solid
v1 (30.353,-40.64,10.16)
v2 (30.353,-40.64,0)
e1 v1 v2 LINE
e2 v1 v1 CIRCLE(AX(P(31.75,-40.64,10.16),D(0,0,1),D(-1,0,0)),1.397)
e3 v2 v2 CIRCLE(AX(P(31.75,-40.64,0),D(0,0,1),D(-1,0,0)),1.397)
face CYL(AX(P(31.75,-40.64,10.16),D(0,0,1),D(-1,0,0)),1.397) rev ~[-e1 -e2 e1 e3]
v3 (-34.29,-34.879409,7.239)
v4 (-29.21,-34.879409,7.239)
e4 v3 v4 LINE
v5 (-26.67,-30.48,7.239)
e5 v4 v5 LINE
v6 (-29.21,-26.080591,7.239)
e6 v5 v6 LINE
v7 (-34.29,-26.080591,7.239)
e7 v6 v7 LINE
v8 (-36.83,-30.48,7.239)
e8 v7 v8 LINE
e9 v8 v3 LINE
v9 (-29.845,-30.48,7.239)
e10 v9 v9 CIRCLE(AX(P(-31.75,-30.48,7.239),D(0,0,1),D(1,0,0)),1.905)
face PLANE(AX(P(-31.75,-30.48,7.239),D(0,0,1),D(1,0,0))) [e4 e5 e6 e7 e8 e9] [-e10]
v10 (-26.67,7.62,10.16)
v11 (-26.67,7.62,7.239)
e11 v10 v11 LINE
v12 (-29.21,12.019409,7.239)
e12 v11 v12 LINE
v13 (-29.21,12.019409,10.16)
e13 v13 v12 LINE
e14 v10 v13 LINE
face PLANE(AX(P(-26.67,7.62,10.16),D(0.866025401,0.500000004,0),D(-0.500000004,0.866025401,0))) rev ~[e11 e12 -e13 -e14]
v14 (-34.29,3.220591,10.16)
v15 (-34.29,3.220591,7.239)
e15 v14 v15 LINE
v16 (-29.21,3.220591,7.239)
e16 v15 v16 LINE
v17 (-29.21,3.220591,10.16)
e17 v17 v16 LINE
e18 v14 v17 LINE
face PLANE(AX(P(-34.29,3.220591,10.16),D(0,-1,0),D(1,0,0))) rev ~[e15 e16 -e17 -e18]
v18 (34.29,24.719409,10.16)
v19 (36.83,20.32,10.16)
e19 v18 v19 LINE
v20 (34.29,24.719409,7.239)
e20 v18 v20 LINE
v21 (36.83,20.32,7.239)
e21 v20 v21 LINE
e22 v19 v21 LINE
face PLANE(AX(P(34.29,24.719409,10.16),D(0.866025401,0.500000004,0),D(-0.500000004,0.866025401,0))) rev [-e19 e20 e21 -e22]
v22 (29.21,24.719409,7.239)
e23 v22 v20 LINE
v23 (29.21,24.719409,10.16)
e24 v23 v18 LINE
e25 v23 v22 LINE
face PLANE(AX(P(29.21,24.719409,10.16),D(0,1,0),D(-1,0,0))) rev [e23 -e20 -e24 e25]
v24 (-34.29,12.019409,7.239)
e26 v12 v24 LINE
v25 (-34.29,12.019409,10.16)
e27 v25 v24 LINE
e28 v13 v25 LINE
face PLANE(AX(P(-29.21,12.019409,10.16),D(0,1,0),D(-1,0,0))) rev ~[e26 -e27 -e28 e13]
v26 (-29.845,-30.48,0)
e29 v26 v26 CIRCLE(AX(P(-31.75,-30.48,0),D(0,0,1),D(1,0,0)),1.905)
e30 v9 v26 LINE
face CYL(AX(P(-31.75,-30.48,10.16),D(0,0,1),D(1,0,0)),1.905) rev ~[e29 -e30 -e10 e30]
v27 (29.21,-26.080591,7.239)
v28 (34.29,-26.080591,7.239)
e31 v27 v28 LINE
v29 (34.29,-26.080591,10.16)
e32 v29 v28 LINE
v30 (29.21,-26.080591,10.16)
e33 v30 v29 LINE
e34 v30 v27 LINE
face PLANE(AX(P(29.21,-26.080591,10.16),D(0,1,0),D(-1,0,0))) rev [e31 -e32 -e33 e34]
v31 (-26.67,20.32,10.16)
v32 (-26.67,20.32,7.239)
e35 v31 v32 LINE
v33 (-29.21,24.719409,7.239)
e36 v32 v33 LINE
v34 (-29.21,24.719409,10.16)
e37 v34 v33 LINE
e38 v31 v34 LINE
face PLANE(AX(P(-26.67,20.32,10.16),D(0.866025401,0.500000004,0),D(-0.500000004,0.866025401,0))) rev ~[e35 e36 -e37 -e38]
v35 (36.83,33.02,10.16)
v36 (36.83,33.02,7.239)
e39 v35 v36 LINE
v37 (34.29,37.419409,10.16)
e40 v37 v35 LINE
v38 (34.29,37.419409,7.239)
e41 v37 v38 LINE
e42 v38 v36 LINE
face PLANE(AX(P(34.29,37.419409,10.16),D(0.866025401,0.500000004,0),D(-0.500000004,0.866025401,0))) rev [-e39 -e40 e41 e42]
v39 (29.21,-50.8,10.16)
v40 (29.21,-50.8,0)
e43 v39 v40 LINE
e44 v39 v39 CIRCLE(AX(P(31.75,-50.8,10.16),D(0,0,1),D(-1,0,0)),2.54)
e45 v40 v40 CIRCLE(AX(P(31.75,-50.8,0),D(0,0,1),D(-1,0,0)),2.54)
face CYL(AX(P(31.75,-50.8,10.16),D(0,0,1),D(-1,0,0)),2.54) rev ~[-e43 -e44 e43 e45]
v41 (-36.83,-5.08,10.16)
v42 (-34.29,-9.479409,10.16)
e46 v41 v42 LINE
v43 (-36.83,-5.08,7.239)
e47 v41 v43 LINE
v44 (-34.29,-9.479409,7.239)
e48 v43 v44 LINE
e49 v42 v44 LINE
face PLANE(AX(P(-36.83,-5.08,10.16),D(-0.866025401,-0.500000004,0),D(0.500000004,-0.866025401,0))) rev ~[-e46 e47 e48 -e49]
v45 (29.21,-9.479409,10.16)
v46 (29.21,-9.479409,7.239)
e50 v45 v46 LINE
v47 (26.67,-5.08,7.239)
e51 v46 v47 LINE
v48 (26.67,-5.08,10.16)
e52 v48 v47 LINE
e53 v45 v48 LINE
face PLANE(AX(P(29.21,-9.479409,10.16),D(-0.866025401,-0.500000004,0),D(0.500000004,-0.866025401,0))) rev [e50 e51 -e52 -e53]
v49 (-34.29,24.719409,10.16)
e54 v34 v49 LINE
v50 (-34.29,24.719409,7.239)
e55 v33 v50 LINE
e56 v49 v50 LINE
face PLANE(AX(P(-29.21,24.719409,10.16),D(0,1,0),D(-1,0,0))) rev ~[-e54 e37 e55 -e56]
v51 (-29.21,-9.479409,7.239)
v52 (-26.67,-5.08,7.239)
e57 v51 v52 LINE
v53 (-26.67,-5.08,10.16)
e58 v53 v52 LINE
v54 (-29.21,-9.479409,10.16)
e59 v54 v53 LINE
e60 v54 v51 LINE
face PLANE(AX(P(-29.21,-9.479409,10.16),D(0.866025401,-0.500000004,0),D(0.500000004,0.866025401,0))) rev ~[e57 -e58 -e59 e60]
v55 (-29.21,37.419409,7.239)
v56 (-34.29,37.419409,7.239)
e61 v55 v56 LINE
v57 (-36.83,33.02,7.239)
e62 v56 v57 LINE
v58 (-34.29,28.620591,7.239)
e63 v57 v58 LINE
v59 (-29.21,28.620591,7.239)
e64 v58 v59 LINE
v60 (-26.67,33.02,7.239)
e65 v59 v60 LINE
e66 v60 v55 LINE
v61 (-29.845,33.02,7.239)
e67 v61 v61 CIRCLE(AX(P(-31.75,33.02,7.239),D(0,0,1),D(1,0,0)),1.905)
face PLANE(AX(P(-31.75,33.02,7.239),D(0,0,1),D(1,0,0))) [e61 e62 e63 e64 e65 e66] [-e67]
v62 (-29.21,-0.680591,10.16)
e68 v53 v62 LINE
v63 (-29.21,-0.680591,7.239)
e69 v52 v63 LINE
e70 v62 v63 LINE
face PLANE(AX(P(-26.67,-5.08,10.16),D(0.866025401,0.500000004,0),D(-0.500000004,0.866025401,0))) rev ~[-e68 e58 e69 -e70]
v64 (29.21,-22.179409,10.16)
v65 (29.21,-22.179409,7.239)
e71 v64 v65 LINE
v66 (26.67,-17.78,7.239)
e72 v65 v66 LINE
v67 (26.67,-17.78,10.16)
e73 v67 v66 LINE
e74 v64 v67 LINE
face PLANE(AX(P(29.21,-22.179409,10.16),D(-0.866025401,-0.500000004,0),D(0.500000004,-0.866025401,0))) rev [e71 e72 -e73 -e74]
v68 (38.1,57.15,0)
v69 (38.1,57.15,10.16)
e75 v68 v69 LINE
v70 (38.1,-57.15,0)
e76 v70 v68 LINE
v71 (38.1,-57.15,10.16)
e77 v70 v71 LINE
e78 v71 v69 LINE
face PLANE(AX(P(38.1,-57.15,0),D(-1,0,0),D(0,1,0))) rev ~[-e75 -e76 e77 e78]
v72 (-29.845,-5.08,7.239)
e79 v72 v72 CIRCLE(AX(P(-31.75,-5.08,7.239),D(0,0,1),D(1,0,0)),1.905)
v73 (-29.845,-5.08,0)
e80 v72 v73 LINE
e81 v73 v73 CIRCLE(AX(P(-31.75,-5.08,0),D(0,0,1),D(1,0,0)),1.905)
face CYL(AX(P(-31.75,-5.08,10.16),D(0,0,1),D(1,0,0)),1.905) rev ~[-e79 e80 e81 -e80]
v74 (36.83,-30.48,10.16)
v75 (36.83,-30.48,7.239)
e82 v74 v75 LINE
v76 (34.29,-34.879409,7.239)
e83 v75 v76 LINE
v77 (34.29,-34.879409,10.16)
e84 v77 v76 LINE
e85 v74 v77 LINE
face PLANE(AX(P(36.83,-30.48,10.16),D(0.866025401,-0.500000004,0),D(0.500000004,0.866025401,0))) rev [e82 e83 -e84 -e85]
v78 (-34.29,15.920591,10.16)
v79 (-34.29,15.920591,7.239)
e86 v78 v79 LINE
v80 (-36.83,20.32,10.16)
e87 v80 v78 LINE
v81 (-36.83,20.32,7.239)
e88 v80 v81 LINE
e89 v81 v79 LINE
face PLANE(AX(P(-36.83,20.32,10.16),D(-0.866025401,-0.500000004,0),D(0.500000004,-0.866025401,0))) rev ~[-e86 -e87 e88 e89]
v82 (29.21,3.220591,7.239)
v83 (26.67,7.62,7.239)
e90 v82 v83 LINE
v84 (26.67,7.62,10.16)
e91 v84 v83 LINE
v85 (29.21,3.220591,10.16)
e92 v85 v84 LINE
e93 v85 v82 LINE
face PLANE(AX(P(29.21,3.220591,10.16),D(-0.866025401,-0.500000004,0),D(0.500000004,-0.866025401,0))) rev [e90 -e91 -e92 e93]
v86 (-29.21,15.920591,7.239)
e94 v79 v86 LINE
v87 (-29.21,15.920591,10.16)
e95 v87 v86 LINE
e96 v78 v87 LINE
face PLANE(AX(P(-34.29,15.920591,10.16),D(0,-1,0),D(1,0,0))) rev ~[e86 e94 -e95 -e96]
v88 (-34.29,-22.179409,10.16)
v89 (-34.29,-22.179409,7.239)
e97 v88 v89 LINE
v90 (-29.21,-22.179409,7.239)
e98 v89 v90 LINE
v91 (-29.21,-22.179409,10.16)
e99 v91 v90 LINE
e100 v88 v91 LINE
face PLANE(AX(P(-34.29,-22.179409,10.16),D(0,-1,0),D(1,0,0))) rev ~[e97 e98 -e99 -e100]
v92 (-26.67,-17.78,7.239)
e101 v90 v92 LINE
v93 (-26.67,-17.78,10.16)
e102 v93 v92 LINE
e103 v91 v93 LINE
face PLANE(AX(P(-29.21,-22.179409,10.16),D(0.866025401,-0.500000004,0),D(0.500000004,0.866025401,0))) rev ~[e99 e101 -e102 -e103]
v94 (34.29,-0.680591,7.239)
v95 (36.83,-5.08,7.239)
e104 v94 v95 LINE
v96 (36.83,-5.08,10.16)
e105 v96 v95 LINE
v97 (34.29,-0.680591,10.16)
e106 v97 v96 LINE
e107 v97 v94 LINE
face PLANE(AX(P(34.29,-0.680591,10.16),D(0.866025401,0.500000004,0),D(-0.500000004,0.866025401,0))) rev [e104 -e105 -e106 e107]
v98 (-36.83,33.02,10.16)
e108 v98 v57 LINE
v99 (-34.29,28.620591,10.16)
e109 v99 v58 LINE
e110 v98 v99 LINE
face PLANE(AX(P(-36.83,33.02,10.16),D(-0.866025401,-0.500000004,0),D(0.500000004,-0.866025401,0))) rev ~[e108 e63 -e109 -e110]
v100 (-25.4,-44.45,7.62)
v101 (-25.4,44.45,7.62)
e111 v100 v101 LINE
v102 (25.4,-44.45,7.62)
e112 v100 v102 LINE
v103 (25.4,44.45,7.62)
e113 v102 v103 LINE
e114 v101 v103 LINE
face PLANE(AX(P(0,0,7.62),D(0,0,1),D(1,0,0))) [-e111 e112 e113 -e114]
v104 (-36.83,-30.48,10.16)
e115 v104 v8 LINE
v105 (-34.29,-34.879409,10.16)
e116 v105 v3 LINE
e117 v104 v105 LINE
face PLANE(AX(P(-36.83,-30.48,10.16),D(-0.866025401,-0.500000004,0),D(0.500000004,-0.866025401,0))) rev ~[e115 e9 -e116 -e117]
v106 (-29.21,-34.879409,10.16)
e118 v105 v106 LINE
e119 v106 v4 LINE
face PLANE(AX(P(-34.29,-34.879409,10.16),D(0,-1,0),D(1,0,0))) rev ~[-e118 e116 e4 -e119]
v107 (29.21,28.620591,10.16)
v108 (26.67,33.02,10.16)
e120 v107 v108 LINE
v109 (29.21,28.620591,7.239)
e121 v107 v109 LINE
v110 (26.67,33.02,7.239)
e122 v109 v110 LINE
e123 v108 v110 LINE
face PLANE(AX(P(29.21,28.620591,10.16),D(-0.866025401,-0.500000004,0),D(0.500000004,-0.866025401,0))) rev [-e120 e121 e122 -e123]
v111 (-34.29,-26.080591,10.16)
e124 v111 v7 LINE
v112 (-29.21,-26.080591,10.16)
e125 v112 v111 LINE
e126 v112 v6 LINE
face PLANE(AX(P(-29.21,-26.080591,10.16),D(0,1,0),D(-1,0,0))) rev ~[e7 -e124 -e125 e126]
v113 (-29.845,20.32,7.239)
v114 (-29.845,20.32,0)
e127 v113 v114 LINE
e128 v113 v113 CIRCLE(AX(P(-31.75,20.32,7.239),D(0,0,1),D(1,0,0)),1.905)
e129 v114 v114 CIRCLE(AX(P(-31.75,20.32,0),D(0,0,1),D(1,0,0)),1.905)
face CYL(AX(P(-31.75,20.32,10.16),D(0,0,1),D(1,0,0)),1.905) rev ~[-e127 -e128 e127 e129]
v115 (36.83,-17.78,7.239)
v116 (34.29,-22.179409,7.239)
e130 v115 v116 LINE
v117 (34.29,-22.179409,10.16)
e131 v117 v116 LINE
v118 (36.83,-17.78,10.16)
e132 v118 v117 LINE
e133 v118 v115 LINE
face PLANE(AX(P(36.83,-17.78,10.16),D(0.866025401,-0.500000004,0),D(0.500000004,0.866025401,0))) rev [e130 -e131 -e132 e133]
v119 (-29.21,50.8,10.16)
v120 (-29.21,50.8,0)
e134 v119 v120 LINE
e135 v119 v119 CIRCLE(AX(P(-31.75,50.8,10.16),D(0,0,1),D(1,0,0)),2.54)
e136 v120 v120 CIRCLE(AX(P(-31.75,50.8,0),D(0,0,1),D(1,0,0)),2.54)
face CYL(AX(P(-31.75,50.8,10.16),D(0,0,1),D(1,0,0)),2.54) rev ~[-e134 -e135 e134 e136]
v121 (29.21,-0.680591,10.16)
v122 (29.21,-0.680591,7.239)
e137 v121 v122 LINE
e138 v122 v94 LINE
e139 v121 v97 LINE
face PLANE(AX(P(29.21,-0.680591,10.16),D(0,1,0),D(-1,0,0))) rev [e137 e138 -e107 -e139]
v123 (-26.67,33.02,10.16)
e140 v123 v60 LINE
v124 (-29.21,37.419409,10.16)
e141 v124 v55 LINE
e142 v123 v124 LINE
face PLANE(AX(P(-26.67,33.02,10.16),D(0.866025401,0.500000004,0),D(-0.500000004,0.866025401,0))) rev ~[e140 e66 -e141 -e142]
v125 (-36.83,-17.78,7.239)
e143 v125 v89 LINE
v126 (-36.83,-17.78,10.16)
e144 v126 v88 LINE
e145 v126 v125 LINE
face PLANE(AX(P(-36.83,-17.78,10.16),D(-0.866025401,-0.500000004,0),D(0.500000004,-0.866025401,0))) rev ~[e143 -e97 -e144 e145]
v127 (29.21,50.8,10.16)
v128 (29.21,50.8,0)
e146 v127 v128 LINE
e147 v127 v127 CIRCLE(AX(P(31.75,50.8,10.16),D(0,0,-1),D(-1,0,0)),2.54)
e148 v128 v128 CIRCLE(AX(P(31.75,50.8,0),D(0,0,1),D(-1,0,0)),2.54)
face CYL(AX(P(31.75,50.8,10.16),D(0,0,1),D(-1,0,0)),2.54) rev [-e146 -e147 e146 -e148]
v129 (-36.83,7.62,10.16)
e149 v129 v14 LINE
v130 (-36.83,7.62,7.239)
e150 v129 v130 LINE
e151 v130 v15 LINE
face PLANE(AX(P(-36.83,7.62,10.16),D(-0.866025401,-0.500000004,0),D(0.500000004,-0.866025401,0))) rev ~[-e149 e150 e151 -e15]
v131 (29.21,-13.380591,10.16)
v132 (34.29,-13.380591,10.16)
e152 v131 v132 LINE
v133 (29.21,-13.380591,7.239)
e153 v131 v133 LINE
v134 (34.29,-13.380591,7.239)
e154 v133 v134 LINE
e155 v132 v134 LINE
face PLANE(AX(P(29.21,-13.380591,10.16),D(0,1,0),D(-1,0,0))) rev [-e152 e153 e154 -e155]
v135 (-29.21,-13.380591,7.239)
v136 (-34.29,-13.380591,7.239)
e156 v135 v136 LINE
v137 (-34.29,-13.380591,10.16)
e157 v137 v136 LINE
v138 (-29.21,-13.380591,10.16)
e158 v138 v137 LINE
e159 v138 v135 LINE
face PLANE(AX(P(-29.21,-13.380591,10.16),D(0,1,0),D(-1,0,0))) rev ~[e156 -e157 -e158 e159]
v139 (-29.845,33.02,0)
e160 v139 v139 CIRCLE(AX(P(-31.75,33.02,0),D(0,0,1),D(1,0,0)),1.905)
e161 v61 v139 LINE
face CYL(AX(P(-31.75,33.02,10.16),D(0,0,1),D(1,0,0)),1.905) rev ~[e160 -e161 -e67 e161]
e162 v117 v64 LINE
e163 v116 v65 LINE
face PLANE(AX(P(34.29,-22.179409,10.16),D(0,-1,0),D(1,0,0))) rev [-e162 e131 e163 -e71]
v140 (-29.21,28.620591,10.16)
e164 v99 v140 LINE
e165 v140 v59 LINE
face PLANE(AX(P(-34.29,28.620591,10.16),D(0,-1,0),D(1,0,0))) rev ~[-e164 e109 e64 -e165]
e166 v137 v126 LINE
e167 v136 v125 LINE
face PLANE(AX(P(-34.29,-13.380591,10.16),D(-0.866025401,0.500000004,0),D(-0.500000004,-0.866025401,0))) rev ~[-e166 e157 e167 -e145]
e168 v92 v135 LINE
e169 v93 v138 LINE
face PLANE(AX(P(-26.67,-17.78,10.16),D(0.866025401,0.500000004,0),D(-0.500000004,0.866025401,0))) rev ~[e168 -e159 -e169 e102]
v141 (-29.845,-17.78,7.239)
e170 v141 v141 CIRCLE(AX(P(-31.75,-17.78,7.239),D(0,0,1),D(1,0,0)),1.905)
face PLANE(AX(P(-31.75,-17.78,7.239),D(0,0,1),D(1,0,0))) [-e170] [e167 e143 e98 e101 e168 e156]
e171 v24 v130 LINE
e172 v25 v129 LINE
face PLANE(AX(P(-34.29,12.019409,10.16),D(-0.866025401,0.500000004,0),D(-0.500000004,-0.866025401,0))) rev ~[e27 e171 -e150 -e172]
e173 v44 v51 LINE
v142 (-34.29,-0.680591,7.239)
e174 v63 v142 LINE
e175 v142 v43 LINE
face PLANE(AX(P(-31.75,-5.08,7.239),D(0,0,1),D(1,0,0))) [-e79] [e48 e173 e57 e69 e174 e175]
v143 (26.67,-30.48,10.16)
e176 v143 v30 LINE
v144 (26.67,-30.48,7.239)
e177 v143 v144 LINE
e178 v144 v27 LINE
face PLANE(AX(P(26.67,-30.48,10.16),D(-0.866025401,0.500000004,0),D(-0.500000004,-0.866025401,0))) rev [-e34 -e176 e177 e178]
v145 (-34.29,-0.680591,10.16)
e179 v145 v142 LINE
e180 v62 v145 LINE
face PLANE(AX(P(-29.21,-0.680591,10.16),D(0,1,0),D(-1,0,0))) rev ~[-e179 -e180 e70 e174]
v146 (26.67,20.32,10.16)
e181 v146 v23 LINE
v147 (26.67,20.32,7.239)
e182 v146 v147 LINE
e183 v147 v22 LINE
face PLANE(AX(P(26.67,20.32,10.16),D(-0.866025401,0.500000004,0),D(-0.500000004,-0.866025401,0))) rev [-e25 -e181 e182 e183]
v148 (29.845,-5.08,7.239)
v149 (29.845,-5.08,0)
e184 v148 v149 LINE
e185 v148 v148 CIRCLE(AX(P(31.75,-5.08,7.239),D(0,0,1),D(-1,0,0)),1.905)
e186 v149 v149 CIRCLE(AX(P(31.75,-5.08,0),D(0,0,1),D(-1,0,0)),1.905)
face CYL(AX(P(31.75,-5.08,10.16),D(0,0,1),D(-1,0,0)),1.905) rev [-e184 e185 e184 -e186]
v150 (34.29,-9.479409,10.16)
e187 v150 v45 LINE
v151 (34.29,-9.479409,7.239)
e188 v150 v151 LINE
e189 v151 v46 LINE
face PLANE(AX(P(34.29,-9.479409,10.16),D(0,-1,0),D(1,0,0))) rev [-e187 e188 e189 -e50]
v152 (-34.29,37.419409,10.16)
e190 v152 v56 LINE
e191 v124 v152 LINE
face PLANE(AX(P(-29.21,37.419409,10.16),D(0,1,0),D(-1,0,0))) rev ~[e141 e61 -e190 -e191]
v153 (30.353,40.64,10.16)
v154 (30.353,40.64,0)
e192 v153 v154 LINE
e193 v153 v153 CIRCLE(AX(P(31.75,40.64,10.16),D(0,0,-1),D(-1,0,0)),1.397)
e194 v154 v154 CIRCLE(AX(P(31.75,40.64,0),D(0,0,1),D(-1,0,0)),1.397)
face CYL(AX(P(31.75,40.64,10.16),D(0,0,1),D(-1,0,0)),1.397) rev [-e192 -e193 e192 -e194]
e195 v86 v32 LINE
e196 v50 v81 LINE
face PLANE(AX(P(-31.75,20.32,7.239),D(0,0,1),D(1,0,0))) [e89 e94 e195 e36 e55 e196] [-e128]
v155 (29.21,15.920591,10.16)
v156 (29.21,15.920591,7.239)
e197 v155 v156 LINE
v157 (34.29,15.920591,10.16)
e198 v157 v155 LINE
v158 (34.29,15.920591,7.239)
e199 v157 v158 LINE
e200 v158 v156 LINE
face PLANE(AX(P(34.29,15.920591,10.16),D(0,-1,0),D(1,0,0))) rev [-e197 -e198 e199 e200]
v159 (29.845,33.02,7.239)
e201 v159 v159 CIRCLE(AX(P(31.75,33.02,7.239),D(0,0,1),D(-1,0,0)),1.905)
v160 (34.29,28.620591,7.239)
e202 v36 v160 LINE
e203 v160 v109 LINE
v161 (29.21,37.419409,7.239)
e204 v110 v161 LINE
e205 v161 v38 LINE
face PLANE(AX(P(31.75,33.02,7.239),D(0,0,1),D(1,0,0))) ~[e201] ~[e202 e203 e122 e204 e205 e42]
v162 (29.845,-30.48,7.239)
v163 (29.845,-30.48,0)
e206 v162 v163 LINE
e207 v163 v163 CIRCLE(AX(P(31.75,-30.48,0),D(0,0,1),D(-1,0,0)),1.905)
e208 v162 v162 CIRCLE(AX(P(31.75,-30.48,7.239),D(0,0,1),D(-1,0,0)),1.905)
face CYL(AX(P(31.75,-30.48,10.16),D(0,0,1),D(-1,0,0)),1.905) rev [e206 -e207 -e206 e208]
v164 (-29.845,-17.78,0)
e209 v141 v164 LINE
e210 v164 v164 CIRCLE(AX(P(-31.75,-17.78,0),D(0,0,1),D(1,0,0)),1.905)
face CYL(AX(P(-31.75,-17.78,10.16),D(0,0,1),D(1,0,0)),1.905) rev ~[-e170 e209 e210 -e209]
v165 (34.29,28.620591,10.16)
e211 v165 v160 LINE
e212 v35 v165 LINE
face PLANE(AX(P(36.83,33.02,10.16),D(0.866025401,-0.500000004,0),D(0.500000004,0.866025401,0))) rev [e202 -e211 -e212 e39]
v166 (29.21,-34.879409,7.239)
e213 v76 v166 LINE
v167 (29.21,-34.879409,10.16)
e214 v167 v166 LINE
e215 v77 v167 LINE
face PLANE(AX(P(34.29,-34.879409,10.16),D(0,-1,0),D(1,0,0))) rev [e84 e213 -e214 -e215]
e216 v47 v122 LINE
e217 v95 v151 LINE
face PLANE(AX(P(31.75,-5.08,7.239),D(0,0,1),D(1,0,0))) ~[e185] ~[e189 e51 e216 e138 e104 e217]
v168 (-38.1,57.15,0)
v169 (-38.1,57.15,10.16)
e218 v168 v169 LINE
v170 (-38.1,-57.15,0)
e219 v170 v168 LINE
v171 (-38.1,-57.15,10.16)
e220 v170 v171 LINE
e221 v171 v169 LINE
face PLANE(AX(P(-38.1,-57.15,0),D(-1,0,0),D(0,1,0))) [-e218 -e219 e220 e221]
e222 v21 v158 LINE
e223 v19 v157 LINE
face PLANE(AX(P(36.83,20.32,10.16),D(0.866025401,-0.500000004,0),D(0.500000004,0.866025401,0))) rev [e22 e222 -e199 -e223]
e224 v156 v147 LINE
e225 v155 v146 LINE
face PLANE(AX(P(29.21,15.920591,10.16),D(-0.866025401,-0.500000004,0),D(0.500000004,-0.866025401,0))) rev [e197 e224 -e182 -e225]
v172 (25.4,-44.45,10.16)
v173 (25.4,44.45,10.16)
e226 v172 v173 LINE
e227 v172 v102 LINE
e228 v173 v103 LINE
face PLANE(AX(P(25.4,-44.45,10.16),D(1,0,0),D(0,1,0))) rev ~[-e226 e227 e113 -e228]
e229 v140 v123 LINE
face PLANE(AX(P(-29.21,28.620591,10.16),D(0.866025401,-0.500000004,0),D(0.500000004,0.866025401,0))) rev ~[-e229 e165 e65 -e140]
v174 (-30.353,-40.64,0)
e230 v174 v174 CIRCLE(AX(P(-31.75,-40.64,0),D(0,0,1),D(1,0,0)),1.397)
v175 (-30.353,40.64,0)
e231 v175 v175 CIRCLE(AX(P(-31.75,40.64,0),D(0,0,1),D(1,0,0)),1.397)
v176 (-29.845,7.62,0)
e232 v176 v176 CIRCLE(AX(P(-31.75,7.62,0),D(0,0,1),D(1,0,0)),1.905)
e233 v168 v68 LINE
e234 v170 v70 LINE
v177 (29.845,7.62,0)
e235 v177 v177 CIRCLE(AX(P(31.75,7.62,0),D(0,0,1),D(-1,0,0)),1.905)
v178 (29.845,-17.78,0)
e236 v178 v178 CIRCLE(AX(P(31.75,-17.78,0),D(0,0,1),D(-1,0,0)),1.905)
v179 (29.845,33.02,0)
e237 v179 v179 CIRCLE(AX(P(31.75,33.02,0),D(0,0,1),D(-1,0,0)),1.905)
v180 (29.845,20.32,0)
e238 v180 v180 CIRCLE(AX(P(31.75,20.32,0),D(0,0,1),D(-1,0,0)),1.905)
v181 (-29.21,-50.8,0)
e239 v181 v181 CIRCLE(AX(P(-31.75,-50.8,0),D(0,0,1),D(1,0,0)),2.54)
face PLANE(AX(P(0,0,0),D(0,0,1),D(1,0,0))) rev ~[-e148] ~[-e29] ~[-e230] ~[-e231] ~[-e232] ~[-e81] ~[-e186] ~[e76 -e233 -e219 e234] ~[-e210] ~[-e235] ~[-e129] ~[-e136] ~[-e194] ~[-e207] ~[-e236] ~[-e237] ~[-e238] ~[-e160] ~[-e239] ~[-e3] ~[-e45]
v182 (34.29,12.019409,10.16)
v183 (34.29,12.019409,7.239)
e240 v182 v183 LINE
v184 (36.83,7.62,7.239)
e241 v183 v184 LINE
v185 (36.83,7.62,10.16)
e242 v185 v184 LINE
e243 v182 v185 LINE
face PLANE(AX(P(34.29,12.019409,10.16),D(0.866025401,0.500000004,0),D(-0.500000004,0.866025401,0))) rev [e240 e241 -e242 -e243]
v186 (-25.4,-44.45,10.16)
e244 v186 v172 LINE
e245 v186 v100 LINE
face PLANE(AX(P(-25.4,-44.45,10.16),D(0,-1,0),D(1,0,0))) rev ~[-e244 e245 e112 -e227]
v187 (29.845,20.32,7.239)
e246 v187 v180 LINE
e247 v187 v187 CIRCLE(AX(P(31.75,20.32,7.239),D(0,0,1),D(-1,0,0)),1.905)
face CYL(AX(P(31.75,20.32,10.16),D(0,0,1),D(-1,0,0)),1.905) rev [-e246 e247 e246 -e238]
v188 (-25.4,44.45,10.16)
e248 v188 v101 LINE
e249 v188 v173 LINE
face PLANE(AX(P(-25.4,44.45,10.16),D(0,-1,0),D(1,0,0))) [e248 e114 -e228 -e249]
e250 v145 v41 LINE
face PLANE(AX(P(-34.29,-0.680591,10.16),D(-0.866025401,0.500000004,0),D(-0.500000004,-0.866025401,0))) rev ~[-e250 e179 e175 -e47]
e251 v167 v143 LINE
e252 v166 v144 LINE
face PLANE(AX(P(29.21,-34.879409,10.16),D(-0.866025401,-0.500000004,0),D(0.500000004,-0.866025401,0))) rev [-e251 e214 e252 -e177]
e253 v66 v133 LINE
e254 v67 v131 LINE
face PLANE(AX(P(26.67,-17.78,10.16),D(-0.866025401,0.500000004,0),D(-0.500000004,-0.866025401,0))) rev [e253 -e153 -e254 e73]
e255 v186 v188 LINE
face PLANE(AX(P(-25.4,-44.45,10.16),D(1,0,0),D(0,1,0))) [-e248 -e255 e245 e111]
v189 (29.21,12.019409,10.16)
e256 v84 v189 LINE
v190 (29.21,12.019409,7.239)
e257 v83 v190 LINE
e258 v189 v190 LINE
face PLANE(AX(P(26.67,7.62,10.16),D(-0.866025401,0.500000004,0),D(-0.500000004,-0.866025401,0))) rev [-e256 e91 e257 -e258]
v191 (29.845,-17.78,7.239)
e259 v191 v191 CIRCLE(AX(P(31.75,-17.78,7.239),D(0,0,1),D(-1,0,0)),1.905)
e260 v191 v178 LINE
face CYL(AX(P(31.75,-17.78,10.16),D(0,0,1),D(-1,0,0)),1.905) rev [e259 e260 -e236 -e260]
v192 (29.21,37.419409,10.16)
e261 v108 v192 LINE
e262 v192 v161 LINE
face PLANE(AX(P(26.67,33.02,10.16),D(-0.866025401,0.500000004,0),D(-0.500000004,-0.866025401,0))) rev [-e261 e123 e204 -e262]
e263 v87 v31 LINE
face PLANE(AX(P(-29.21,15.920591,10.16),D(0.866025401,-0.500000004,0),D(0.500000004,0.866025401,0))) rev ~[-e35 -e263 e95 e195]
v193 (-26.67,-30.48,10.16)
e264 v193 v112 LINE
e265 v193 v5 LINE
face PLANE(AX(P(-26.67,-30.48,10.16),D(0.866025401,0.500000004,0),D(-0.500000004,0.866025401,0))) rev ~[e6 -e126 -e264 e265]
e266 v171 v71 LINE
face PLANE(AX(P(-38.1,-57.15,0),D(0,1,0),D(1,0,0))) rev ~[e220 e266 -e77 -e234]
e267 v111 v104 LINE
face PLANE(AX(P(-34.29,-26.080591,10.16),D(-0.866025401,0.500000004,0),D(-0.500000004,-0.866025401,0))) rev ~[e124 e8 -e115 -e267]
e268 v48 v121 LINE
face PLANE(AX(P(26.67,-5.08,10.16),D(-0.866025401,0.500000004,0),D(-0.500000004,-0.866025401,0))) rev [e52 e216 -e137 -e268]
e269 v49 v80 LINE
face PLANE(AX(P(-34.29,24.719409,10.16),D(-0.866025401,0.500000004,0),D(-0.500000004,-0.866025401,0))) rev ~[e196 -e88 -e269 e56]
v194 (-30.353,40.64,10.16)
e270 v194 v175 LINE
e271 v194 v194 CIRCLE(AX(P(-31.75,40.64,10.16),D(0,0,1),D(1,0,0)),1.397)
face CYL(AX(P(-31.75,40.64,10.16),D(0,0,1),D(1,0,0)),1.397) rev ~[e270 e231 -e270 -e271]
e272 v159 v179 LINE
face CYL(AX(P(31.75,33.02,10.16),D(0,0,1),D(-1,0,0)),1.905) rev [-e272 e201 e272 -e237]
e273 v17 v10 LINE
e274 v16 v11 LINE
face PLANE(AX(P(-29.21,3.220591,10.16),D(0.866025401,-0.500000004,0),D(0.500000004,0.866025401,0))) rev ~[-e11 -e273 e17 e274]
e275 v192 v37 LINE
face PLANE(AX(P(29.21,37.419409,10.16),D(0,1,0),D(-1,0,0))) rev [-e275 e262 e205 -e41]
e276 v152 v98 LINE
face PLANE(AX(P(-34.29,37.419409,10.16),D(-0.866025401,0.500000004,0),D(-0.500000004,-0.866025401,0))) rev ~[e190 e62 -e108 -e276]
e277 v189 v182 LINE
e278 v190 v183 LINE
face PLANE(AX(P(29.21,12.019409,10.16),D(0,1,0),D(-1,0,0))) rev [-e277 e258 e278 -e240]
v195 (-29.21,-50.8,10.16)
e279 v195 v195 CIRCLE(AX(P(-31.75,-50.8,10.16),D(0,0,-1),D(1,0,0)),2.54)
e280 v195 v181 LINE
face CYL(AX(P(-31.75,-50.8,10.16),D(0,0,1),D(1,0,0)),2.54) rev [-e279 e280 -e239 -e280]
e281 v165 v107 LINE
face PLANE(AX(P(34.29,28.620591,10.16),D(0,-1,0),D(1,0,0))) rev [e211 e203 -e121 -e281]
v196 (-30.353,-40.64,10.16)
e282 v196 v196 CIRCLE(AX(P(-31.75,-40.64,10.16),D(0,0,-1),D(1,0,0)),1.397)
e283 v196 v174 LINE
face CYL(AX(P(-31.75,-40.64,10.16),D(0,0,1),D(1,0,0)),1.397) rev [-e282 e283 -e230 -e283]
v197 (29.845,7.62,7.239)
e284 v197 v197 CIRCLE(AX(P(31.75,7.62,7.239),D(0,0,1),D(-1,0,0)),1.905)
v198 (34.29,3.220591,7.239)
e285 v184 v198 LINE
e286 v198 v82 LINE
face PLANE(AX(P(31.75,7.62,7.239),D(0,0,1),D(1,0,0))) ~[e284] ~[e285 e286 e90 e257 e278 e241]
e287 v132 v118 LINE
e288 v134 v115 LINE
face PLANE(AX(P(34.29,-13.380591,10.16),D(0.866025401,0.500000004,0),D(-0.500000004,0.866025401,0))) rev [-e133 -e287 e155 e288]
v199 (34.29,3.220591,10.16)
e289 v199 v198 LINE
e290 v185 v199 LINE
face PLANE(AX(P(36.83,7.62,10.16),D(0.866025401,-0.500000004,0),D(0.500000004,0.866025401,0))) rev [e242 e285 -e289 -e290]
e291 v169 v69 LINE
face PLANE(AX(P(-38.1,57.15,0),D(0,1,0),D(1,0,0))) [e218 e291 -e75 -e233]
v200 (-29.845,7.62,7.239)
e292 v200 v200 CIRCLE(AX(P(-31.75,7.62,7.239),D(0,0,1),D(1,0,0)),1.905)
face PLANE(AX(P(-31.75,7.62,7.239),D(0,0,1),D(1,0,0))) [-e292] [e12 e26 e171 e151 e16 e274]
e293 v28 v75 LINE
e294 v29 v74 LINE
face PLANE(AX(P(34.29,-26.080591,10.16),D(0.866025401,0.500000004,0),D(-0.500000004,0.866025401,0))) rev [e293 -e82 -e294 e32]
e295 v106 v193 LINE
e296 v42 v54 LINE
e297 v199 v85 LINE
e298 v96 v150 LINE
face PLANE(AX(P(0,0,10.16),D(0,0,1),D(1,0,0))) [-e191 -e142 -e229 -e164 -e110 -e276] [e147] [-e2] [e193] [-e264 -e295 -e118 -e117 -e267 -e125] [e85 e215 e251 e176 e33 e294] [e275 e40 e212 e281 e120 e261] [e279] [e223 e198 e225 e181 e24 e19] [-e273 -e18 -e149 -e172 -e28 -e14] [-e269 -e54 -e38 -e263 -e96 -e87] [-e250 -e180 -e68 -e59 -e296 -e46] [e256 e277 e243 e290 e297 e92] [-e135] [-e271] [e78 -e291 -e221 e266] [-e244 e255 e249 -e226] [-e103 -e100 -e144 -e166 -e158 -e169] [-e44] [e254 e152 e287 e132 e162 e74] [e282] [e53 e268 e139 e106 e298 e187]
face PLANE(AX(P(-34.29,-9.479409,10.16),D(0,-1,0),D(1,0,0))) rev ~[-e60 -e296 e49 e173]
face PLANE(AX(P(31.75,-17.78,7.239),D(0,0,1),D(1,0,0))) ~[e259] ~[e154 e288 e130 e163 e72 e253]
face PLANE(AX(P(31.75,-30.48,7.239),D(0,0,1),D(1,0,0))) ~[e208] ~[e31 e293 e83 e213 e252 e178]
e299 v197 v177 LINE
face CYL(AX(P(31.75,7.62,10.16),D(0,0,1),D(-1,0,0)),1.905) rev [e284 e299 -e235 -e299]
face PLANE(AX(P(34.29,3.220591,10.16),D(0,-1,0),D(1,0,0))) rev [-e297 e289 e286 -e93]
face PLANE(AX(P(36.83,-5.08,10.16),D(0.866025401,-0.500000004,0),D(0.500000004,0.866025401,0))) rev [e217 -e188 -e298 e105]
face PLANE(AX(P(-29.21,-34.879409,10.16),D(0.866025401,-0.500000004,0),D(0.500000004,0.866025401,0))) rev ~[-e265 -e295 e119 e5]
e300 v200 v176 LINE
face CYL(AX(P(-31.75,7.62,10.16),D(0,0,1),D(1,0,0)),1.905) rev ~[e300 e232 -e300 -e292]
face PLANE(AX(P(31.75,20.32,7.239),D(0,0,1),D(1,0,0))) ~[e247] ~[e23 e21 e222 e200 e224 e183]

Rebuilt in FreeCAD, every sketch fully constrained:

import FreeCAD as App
import Part
import Sketcher
from FreeCAD import Vector
Q = App.Units.Quantity


def add_polygon(sketch, points):
    """Adds a closed chain of lines whose ends are joined by coincident constraints."""
    first, n = sketch.GeometryCount, len(points)
    for a, b in zip(points, points[1:] + points[:1]):
        sketch.addGeometry(Part.LineSegment(App.Vector(*a, 0), App.Vector(*b, 0)), False)
    for i in range(n):
        sketch.addConstraint(Sketcher.Constraint("Coincident", first + i, 2, first + (i + 1) % n, 1))

doc = App.newDocument("Part")
body = doc.addObject("PartDesign::Body", "Body")

# Sketch on XY plane
sketch1 = body.newObject("Sketcher::SketchObject", "Sketch")
sketch1.AttachmentSupport = (doc.getObject("XY_Plane"), [""])
sketch1.MapMode = "FlatFace"
add_polygon(sketch1, [(-38, 57), (-38, -57), (38, -57), (38, 57)])  # lines 0-3
sketch1.addConstraint([
    Sketcher.Constraint("Vertical", 0),
    Sketcher.Constraint("Horizontal", 1),
    Sketcher.Constraint("Vertical", 2),
    Sketcher.Constraint("Horizontal", 3),
    Sketcher.Constraint("Symmetric", 0, 2, 2, 2, -1, 1),
    Sketcher.Constraint("DistanceX", 1, 1, 1, 2, Q("3 in")),
    Sketcher.Constraint("DistanceY", 0, 2, 0, 1, Q("4.5 in")),
])
pad1 = body.newObject("PartDesign::Pad", "Pad")
pad1.Profile = sketch1
pad1.Length = Q("0.4 in")

# Sketch on XY plane
sketch2 = body.newObject("Sketcher::SketchObject", "Sketch001")
sketch2.AttachmentSupport = (doc.getObject("XY_Plane"), [""])
sketch2.MapMode = "FlatFace"
sketch2.AttachmentOffset = App.Placement(Vector(0, 0, 0.4 * 25.4), App.Rotation())
sketch2.addGeometry(Part.Circle(Vector(-31.8, 40.6, 0), Vector(0, 0, 1), 1.4), False)
sketch2.addConstraint([
    Sketcher.Constraint("Diameter", 0, Q("0.11 in")),
    Sketcher.Constraint("DistanceY", -1, 1, 0, 3, Q("1.6 in")),
    Sketcher.Constraint("DistanceX", 0, 3, -1, 1, Q("1.25 in")),
])
pocket1 = body.newObject("PartDesign::Pocket", "Pocket")
pocket1.Profile = sketch2
pocket1.Type = "ThroughAll"

# Sketch on XY plane
sketch3 = body.newObject("Sketcher::SketchObject", "Sketch002")
sketch3.AttachmentSupport = (doc.getObject("XY_Plane"), [""])
sketch3.MapMode = "FlatFace"
sketch3.AttachmentOffset = App.Placement(Vector(0, 0, 0.4 * 25.4), App.Rotation())
sketch3.addGeometry(Part.Circle(Vector(-31.8, 33, 0), Vector(0, 0, 1), 1.9), False)
sketch3.addConstraint([
    Sketcher.Constraint("Diameter", 0, Q("0.15 in")),
    Sketcher.Constraint("DistanceY", -1, 1, 0, 3, Q("1.3 in")),
    Sketcher.Constraint("DistanceX", 0, 3, -1, 1, Q("1.25 in")),
])
pocket2 = body.newObject("PartDesign::Pocket", "Pocket001")
pocket2.Profile = sketch3
pocket2.Type = "ThroughAll"

# Sketch on XY plane
sketch4 = body.newObject("Sketcher::SketchObject", "Sketch003")
sketch4.AttachmentSupport = (doc.getObject("XY_Plane"), [""])
sketch4.MapMode = "FlatFace"
sketch4.AttachmentOffset = App.Placement(Vector(0, 0, 0.4 * 25.4), App.Rotation())
sketch4.addGeometry(Part.Circle(Vector(31.8, 40.6, 0), Vector(0, 0, 1), 1.4), False)
sketch4.addConstraint([
    Sketcher.Constraint("Diameter", 0, Q("0.11 in")),
    Sketcher.Constraint("DistanceY", -1, 1, 0, 3, Q("1.6 in")),
    Sketcher.Constraint("DistanceX", -1, 1, 0, 3, Q("1.25 in")),
])
pocket3 = body.newObject("PartDesign::Pocket", "Pocket002")
pocket3.Profile = sketch4
pocket3.Type = "ThroughAll"
doc.recompute()

mirrored = body.newObject("PartDesign::Mirrored", "Mirrored")
mirrored.Originals = [pocket1, pocket3]
mirrored.MirrorPlane = (doc.getObject("XZ_Plane"), [""])
body.Tip = mirrored

# Sketch on XY plane
sketch5 = body.newObject("Sketcher::SketchObject", "Sketch004")
sketch5.AttachmentSupport = (doc.getObject("XY_Plane"), [""])
sketch5.MapMode = "FlatFace"
sketch5.AttachmentOffset = App.Placement(Vector(0, 0, 0.4 * 25.4), App.Rotation())
sketch5.addGeometry(Part.Circle(Vector(-31.8, 20.3, 0), Vector(0, 0, 1), 1.9), False)
sketch5.addConstraint([
    Sketcher.Constraint("Diameter", 0, Q("0.15 in")),
    Sketcher.Constraint("DistanceY", -1, 1, 0, 3, Q("0.8 in")),
    Sketcher.Constraint("DistanceX", 0, 3, -1, 1, Q("1.25 in")),
])
pocket4 = body.newObject("PartDesign::Pocket", "Pocket003")
pocket4.Profile = sketch5
pocket4.Type = "ThroughAll"

# Sketch on XY plane
sketch6 = body.newObject("Sketcher::SketchObject", "Sketch005")
sketch6.AttachmentSupport = (doc.getObject("XY_Plane"), [""])
sketch6.MapMode = "FlatFace"
sketch6.AttachmentOffset = App.Placement(Vector(0, 0, 0.4 * 25.4), App.Rotation())
sketch6.addGeometry(Part.Circle(Vector(-31.8, 7.6, 0), Vector(0, 0, 1), 1.9), False)
sketch6.addConstraint([
    Sketcher.Constraint("Diameter", 0, Q("0.15 in")),
    Sketcher.Constraint("DistanceY", -1, 1, 0, 3, Q("0.3 in")),
    Sketcher.Constraint("DistanceX", 0, 3, -1, 1, Q("1.25 in")),
])
pocket5 = body.newObject("PartDesign::Pocket", "Pocket004")
pocket5.Profile = sketch6
pocket5.Type = "ThroughAll"

# Sketch on XY plane
sketch7 = body.newObject("Sketcher::SketchObject", "Sketch006")
sketch7.AttachmentSupport = (doc.getObject("XY_Plane"), [""])
sketch7.MapMode = "FlatFace"
sketch7.AttachmentOffset = App.Placement(Vector(0, 0, 0.4 * 25.4), App.Rotation())
sketch7.addGeometry(Part.Circle(Vector(-31.8, -5.1, 0), Vector(0, 0, 1), 1.9), False)
sketch7.addConstraint([
    Sketcher.Constraint("Diameter", 0, Q("0.15 in")),
    Sketcher.Constraint("DistanceY", 0, 3, -1, 1, Q("0.2 in")),
    Sketcher.Constraint("DistanceX", 0, 3, -1, 1, Q("1.25 in")),
])
pocket6 = body.newObject("PartDesign::Pocket", "Pocket005")
pocket6.Profile = sketch7
pocket6.Type = "ThroughAll"

# Sketch on XY plane
sketch8 = body.newObject("Sketcher::SketchObject", "Sketch007")
sketch8.AttachmentSupport = (doc.getObject("XY_Plane"), [""])
sketch8.MapMode = "FlatFace"
sketch8.AttachmentOffset = App.Placement(Vector(0, 0, 0.4 * 25.4), App.Rotation())
sketch8.addGeometry(Part.Circle(Vector(-31.8, -17.8, 0), Vector(0, 0, 1), 1.9), False)
sketch8.addConstraint([
    Sketcher.Constraint("Diameter", 0, Q("0.15 in")),
    Sketcher.Constraint("DistanceY", 0, 3, -1, 1, Q("0.7 in")),
    Sketcher.Constraint("DistanceX", 0, 3, -1, 1, Q("1.25 in")),
])
pocket7 = body.newObject("PartDesign::Pocket", "Pocket006")
pocket7.Profile = sketch8
pocket7.Type = "ThroughAll"

# Sketch on XY plane
sketch9 = body.newObject("Sketcher::SketchObject", "Sketch008")
sketch9.AttachmentSupport = (doc.getObject("XY_Plane"), [""])
sketch9.MapMode = "FlatFace"
sketch9.AttachmentOffset = App.Placement(Vector(0, 0, 0.4 * 25.4), App.Rotation())
sketch9.addGeometry(Part.Circle(Vector(-31.8, -30.5, 0), Vector(0, 0, 1), 1.9), False)
sketch9.addConstraint([
    Sketcher.Constraint("Diameter", 0, Q("0.15 in")),
    Sketcher.Constraint("DistanceY", 0, 3, -1, 1, Q("1.2 in")),
    Sketcher.Constraint("DistanceX", 0, 3, -1, 1, Q("1.25 in")),
])
pocket8 = body.newObject("PartDesign::Pocket", "Pocket007")
pocket8.Profile = sketch9
pocket8.Type = "ThroughAll"
doc.recompute()

mirrored2 = body.newObject("PartDesign::Mirrored", "Mirrored001")
mirrored2.Originals = [pocket2, pocket4, pocket5, pocket6, pocket7, pocket8]
mirrored2.MirrorPlane = (doc.getObject("YZ_Plane"), [""])
body.Tip = mirrored2

# Sketch on XY plane
sketch10 = body.newObject("Sketcher::SketchObject", "Sketch009")
sketch10.AttachmentSupport = (doc.getObject("XY_Plane"), [""])
sketch10.MapMode = "FlatFace"
sketch10.AttachmentOffset = App.Placement(Vector(0, 0, 0.4 * 25.4), App.Rotation())
add_polygon(sketch10, [(-25, 44), (-25, -44), (25, -44), (25, 44)])  # lines 0-3
sketch10.addConstraint([
    Sketcher.Constraint("Vertical", 0),
    Sketcher.Constraint("Horizontal", 1),
    Sketcher.Constraint("Vertical", 2),
    Sketcher.Constraint("Horizontal", 3),
    Sketcher.Constraint("Symmetric", 0, 2, 2, 2, -1, 1),
    Sketcher.Constraint("DistanceX", 1, 1, 1, 2, Q("2 in")),
    Sketcher.Constraint("DistanceY", 0, 2, 0, 1, Q("3.5 in")),
])
pocket9 = body.newObject("PartDesign::Pocket", "Pocket008")
pocket9.Profile = sketch10
pocket9.Length = Q("0.1 in")

# Sketch on XY plane
sketch11 = body.newObject("Sketcher::SketchObject", "Sketch010")
sketch11.AttachmentSupport = (doc.getObject("XY_Plane"), [""])
sketch11.MapMode = "FlatFace"
sketch11.AttachmentOffset = App.Placement(Vector(0, 0, 0.4 * 25.4), App.Rotation())
sketch11.addGeometry(Part.Circle(Vector(-31.8, 50.8, 0), Vector(0, 0, 1), 2.5), False)
sketch11.addConstraint([
    Sketcher.Constraint("Diameter", 0, Q("0.2 in")),
    Sketcher.Constraint("DistanceY", -1, 1, 0, 3, Q("2 in")),
    Sketcher.Constraint("DistanceX", 0, 3, -1, 1, Q("1.25 in")),
])
pocket10 = body.newObject("PartDesign::Pocket", "Pocket009")
pocket10.Profile = sketch11
pocket10.Type = "ThroughAll"

# Sketch on XY plane
sketch12 = body.newObject("Sketcher::SketchObject", "Sketch011")
sketch12.AttachmentSupport = (doc.getObject("XY_Plane"), [""])
sketch12.MapMode = "FlatFace"
sketch12.AttachmentOffset = App.Placement(Vector(0, 0, 0.4 * 25.4), App.Rotation())
sketch12.addGeometry(Part.Circle(Vector(31.8, 50.8, 0), Vector(0, 0, 1), 2.5), False)
sketch12.addConstraint([
    Sketcher.Constraint("Diameter", 0, Q("0.2 in")),
    Sketcher.Constraint("DistanceY", -1, 1, 0, 3, Q("2 in")),
    Sketcher.Constraint("DistanceX", -1, 1, 0, 3, Q("1.25 in")),
])
pocket11 = body.newObject("PartDesign::Pocket", "Pocket010")
pocket11.Profile = sketch12
pocket11.Type = "ThroughAll"
doc.recompute()

mirrored3 = body.newObject("PartDesign::Mirrored", "Mirrored002")
mirrored3.Originals = [pocket10, pocket11]
mirrored3.MirrorPlane = (doc.getObject("XZ_Plane"), [""])
body.Tip = mirrored3

# Sketch on XY plane
sketch13 = body.newObject("Sketcher::SketchObject", "Sketch012")
sketch13.AttachmentSupport = (doc.getObject("XY_Plane"), [""])
sketch13.MapMode = "FlatFace"
sketch13.AttachmentOffset = App.Placement(Vector(0, 0, 0.4 * 25.4), App.Rotation())
add_polygon(sketch13, [(-29, 37), (-34, 37), (-37, 33), (-34, 29), (-29, 29), (-27, 33)])  # lines 0-5
sketch13.addConstraint([
    Sketcher.Constraint("Horizontal", 0),
    Sketcher.Constraint("Horizontal", 3),
    Sketcher.Constraint("Parallel", 1, 4),
    Sketcher.Constraint("Parallel", 2, 5),
    Sketcher.Constraint("Horizontal", 1, 2, 4, 2),
    Sketcher.Constraint("Vertical", 0, 2, 2, 2),
    Sketcher.Constraint("Vertical", 3, 2, 5, 2),
    Sketcher.Constraint("DistanceX", 0, 2, 0, 1, Q("0.2 in")),
    Sketcher.Constraint("Angle", 1, Q("-120 deg")),
    Sketcher.Constraint("Distance", 1, Q("0.2 in")),
    Sketcher.Constraint("DistanceY", -1, 1, 1, 2, Q("1.3 in")),
    Sketcher.Constraint("DistanceX", 0, 2, -1, 1, Q("1.35 in")),
])
pocket12 = body.newObject("PartDesign::Pocket", "Pocket011")
pocket12.Profile = sketch13
pocket12.Length = Q("0.115 in")

# Sketch on XY plane
sketch14 = body.newObject("Sketcher::SketchObject", "Sketch013")
sketch14.AttachmentSupport = (doc.getObject("XY_Plane"), [""])
sketch14.MapMode = "FlatFace"
sketch14.AttachmentOffset = App.Placement(Vector(0, 0, 0.4 * 25.4), App.Rotation())
add_polygon(sketch14, [(-29, 25), (-34, 25), (-37, 20), (-34, 16), (-29, 16), (-27, 20)])  # lines 0-5
sketch14.addConstraint([
    Sketcher.Constraint("Horizontal", 0),
    Sketcher.Constraint("Horizontal", 3),
    Sketcher.Constraint("Parallel", 1, 4),
    Sketcher.Constraint("Parallel", 2, 5),
    Sketcher.Constraint("Horizontal", 1, 2, 4, 2),
    Sketcher.Constraint("Vertical", 0, 2, 2, 2),
    Sketcher.Constraint("Vertical", 3, 2, 5, 2),
    Sketcher.Constraint("DistanceX", 0, 2, 0, 1, Q("0.2 in")),
    Sketcher.Constraint("Angle", 1, Q("-120 deg")),
    Sketcher.Constraint("Distance", 1, Q("0.2 in")),
    Sketcher.Constraint("DistanceY", -1, 1, 1, 2, Q("0.8 in")),
    Sketcher.Constraint("DistanceX", 0, 2, -1, 1, Q("1.35 in")),
])
pocket13 = body.newObject("PartDesign::Pocket", "Pocket012")
pocket13.Profile = sketch14
pocket13.Length = Q("0.115 in")

# Sketch on XY plane
sketch15 = body.newObject("Sketcher::SketchObject", "Sketch014")
sketch15.AttachmentSupport = (doc.getObject("XY_Plane"), [""])
sketch15.MapMode = "FlatFace"
sketch15.AttachmentOffset = App.Placement(Vector(0, 0, 0.4 * 25.4), App.Rotation())
add_polygon(sketch15, [(-29, 12), (-34, 12), (-37, 8), (-34, 3), (-29, 3), (-27, 8)])  # lines 0-5
sketch15.addConstraint([
    Sketcher.Constraint("Horizontal", 0),
    Sketcher.Constraint("Horizontal", 3),
    Sketcher.Constraint("Parallel", 1, 4),
    Sketcher.Constraint("Parallel", 2, 5),
    Sketcher.Constraint("Horizontal", 1, 2, 4, 2),
    Sketcher.Constraint("Vertical", 0, 2, 2, 2),
    Sketcher.Constraint("Vertical", 3, 2, 5, 2),
    Sketcher.Constraint("DistanceX", 0, 2, 0, 1, Q("0.2 in")),
    Sketcher.Constraint("Angle", 1, Q("-120 deg")),
    Sketcher.Constraint("Distance", 1, Q("0.2 in")),
    Sketcher.Constraint("DistanceY", -1, 1, 1, 2, Q("0.3 in")),
    Sketcher.Constraint("DistanceX", 0, 2, -1, 1, Q("1.35 in")),
])
pocket14 = body.newObject("PartDesign::Pocket", "Pocket013")
pocket14.Profile = sketch15
pocket14.Length = Q("0.115 in")

# Sketch on XY plane
sketch16 = body.newObject("Sketcher::SketchObject", "Sketch015")
sketch16.AttachmentSupport = (doc.getObject("XY_Plane"), [""])
sketch16.MapMode = "FlatFace"
sketch16.AttachmentOffset = App.Placement(Vector(0, 0, 0.4 * 25.4), App.Rotation())
add_polygon(sketch16, [(-29, -1), (-34, -1), (-37, -5), (-34, -9), (-29, -9), (-27, -5)])  # lines 0-5
sketch16.addConstraint([
    Sketcher.Constraint("Horizontal", 0),
    Sketcher.Constraint("Horizontal", 3),
    Sketcher.Constraint("Parallel", 1, 4),
    Sketcher.Constraint("Parallel", 2, 5),
    Sketcher.Constraint("Horizontal", 1, 2, 4, 2),
    Sketcher.Constraint("Vertical", 0, 2, 2, 2),
    Sketcher.Constraint("Vertical", 3, 2, 5, 2),
    Sketcher.Constraint("DistanceX", 0, 2, 0, 1, Q("0.2 in")),
    Sketcher.Constraint("Angle", 1, Q("-120 deg")),
    Sketcher.Constraint("Distance", 1, Q("0.2 in")),
    Sketcher.Constraint("DistanceY", 1, 2, -1, 1, Q("0.2 in")),
    Sketcher.Constraint("DistanceX", 0, 2, -1, 1, Q("1.35 in")),
])
pocket15 = body.newObject("PartDesign::Pocket", "Pocket014")
pocket15.Profile = sketch16
pocket15.Length = Q("0.115 in")

# Sketch on XY plane
sketch17 = body.newObject("Sketcher::SketchObject", "Sketch016")
sketch17.AttachmentSupport = (doc.getObject("XY_Plane"), [""])
sketch17.MapMode = "FlatFace"
sketch17.AttachmentOffset = App.Placement(Vector(0, 0, 0.4 * 25.4), App.Rotation())
add_polygon(sketch17, [(-29, -13), (-34, -13), (-37, -18), (-34, -22), (-29, -22), (-27, -18)])  # lines 0-5
sketch17.addConstraint([
    Sketcher.Constraint("Horizontal", 0),
    Sketcher.Constraint("Horizontal", 3),
    Sketcher.Constraint("Parallel", 1, 4),
    Sketcher.Constraint("Parallel", 2, 5),
    Sketcher.Constraint("Horizontal", 1, 2, 4, 2),
    Sketcher.Constraint("Vertical", 0, 2, 2, 2),
    Sketcher.Constraint("Vertical", 3, 2, 5, 2),
    Sketcher.Constraint("DistanceX", 0, 2, 0, 1, Q("0.2 in")),
    Sketcher.Constraint("Angle", 1, Q("-120 deg")),
    Sketcher.Constraint("Distance", 1, Q("0.2 in")),
    Sketcher.Constraint("DistanceY", 1, 2, -1, 1, Q("0.7 in")),
    Sketcher.Constraint("DistanceX", 0, 2, -1, 1, Q("1.35 in")),
])
pocket16 = body.newObject("PartDesign::Pocket", "Pocket015")
pocket16.Profile = sketch17
pocket16.Length = Q("0.115 in")

# Sketch on XY plane
sketch18 = body.newObject("Sketcher::SketchObject", "Sketch017")
sketch18.AttachmentSupport = (doc.getObject("XY_Plane"), [""])
sketch18.MapMode = "FlatFace"
sketch18.AttachmentOffset = App.Placement(Vector(0, 0, 0.4 * 25.4), App.Rotation())
add_polygon(sketch18, [(-29, -26), (-34, -26), (-37, -30), (-34, -35), (-29, -35), (-27, -30)])  # lines 0-5
sketch18.addConstraint([
    Sketcher.Constraint("Horizontal", 0),
    Sketcher.Constraint("Horizontal", 3),
    Sketcher.Constraint("Parallel", 1, 4),
    Sketcher.Constraint("Parallel", 2, 5),
    Sketcher.Constraint("Horizontal", 1, 2, 4, 2),
    Sketcher.Constraint("Vertical", 0, 2, 2, 2),
    Sketcher.Constraint("Vertical", 3, 2, 5, 2),
    Sketcher.Constraint("DistanceX", 0, 2, 0, 1, Q("0.2 in")),
    Sketcher.Constraint("Angle", 1, Q("-120 deg")),
    Sketcher.Constraint("Distance", 1, Q("0.2 in")),
    Sketcher.Constraint("DistanceY", 1, 2, -1, 1, Q("1.2 in")),
    Sketcher.Constraint("DistanceX", 0, 2, -1, 1, Q("1.35 in")),
])
pocket17 = body.newObject("PartDesign::Pocket", "Pocket016")
pocket17.Profile = sketch18
pocket17.Length = Q("0.115 in")
doc.recompute()

mirrored4 = body.newObject("PartDesign::Mirrored", "Mirrored003")
mirrored4.Originals = [pocket12, pocket13, pocket14, pocket15, pocket16, pocket17]
mirrored4.MirrorPlane = (doc.getObject("YZ_Plane"), [""])
body.Tip = mirrored4

doc.recompute()
